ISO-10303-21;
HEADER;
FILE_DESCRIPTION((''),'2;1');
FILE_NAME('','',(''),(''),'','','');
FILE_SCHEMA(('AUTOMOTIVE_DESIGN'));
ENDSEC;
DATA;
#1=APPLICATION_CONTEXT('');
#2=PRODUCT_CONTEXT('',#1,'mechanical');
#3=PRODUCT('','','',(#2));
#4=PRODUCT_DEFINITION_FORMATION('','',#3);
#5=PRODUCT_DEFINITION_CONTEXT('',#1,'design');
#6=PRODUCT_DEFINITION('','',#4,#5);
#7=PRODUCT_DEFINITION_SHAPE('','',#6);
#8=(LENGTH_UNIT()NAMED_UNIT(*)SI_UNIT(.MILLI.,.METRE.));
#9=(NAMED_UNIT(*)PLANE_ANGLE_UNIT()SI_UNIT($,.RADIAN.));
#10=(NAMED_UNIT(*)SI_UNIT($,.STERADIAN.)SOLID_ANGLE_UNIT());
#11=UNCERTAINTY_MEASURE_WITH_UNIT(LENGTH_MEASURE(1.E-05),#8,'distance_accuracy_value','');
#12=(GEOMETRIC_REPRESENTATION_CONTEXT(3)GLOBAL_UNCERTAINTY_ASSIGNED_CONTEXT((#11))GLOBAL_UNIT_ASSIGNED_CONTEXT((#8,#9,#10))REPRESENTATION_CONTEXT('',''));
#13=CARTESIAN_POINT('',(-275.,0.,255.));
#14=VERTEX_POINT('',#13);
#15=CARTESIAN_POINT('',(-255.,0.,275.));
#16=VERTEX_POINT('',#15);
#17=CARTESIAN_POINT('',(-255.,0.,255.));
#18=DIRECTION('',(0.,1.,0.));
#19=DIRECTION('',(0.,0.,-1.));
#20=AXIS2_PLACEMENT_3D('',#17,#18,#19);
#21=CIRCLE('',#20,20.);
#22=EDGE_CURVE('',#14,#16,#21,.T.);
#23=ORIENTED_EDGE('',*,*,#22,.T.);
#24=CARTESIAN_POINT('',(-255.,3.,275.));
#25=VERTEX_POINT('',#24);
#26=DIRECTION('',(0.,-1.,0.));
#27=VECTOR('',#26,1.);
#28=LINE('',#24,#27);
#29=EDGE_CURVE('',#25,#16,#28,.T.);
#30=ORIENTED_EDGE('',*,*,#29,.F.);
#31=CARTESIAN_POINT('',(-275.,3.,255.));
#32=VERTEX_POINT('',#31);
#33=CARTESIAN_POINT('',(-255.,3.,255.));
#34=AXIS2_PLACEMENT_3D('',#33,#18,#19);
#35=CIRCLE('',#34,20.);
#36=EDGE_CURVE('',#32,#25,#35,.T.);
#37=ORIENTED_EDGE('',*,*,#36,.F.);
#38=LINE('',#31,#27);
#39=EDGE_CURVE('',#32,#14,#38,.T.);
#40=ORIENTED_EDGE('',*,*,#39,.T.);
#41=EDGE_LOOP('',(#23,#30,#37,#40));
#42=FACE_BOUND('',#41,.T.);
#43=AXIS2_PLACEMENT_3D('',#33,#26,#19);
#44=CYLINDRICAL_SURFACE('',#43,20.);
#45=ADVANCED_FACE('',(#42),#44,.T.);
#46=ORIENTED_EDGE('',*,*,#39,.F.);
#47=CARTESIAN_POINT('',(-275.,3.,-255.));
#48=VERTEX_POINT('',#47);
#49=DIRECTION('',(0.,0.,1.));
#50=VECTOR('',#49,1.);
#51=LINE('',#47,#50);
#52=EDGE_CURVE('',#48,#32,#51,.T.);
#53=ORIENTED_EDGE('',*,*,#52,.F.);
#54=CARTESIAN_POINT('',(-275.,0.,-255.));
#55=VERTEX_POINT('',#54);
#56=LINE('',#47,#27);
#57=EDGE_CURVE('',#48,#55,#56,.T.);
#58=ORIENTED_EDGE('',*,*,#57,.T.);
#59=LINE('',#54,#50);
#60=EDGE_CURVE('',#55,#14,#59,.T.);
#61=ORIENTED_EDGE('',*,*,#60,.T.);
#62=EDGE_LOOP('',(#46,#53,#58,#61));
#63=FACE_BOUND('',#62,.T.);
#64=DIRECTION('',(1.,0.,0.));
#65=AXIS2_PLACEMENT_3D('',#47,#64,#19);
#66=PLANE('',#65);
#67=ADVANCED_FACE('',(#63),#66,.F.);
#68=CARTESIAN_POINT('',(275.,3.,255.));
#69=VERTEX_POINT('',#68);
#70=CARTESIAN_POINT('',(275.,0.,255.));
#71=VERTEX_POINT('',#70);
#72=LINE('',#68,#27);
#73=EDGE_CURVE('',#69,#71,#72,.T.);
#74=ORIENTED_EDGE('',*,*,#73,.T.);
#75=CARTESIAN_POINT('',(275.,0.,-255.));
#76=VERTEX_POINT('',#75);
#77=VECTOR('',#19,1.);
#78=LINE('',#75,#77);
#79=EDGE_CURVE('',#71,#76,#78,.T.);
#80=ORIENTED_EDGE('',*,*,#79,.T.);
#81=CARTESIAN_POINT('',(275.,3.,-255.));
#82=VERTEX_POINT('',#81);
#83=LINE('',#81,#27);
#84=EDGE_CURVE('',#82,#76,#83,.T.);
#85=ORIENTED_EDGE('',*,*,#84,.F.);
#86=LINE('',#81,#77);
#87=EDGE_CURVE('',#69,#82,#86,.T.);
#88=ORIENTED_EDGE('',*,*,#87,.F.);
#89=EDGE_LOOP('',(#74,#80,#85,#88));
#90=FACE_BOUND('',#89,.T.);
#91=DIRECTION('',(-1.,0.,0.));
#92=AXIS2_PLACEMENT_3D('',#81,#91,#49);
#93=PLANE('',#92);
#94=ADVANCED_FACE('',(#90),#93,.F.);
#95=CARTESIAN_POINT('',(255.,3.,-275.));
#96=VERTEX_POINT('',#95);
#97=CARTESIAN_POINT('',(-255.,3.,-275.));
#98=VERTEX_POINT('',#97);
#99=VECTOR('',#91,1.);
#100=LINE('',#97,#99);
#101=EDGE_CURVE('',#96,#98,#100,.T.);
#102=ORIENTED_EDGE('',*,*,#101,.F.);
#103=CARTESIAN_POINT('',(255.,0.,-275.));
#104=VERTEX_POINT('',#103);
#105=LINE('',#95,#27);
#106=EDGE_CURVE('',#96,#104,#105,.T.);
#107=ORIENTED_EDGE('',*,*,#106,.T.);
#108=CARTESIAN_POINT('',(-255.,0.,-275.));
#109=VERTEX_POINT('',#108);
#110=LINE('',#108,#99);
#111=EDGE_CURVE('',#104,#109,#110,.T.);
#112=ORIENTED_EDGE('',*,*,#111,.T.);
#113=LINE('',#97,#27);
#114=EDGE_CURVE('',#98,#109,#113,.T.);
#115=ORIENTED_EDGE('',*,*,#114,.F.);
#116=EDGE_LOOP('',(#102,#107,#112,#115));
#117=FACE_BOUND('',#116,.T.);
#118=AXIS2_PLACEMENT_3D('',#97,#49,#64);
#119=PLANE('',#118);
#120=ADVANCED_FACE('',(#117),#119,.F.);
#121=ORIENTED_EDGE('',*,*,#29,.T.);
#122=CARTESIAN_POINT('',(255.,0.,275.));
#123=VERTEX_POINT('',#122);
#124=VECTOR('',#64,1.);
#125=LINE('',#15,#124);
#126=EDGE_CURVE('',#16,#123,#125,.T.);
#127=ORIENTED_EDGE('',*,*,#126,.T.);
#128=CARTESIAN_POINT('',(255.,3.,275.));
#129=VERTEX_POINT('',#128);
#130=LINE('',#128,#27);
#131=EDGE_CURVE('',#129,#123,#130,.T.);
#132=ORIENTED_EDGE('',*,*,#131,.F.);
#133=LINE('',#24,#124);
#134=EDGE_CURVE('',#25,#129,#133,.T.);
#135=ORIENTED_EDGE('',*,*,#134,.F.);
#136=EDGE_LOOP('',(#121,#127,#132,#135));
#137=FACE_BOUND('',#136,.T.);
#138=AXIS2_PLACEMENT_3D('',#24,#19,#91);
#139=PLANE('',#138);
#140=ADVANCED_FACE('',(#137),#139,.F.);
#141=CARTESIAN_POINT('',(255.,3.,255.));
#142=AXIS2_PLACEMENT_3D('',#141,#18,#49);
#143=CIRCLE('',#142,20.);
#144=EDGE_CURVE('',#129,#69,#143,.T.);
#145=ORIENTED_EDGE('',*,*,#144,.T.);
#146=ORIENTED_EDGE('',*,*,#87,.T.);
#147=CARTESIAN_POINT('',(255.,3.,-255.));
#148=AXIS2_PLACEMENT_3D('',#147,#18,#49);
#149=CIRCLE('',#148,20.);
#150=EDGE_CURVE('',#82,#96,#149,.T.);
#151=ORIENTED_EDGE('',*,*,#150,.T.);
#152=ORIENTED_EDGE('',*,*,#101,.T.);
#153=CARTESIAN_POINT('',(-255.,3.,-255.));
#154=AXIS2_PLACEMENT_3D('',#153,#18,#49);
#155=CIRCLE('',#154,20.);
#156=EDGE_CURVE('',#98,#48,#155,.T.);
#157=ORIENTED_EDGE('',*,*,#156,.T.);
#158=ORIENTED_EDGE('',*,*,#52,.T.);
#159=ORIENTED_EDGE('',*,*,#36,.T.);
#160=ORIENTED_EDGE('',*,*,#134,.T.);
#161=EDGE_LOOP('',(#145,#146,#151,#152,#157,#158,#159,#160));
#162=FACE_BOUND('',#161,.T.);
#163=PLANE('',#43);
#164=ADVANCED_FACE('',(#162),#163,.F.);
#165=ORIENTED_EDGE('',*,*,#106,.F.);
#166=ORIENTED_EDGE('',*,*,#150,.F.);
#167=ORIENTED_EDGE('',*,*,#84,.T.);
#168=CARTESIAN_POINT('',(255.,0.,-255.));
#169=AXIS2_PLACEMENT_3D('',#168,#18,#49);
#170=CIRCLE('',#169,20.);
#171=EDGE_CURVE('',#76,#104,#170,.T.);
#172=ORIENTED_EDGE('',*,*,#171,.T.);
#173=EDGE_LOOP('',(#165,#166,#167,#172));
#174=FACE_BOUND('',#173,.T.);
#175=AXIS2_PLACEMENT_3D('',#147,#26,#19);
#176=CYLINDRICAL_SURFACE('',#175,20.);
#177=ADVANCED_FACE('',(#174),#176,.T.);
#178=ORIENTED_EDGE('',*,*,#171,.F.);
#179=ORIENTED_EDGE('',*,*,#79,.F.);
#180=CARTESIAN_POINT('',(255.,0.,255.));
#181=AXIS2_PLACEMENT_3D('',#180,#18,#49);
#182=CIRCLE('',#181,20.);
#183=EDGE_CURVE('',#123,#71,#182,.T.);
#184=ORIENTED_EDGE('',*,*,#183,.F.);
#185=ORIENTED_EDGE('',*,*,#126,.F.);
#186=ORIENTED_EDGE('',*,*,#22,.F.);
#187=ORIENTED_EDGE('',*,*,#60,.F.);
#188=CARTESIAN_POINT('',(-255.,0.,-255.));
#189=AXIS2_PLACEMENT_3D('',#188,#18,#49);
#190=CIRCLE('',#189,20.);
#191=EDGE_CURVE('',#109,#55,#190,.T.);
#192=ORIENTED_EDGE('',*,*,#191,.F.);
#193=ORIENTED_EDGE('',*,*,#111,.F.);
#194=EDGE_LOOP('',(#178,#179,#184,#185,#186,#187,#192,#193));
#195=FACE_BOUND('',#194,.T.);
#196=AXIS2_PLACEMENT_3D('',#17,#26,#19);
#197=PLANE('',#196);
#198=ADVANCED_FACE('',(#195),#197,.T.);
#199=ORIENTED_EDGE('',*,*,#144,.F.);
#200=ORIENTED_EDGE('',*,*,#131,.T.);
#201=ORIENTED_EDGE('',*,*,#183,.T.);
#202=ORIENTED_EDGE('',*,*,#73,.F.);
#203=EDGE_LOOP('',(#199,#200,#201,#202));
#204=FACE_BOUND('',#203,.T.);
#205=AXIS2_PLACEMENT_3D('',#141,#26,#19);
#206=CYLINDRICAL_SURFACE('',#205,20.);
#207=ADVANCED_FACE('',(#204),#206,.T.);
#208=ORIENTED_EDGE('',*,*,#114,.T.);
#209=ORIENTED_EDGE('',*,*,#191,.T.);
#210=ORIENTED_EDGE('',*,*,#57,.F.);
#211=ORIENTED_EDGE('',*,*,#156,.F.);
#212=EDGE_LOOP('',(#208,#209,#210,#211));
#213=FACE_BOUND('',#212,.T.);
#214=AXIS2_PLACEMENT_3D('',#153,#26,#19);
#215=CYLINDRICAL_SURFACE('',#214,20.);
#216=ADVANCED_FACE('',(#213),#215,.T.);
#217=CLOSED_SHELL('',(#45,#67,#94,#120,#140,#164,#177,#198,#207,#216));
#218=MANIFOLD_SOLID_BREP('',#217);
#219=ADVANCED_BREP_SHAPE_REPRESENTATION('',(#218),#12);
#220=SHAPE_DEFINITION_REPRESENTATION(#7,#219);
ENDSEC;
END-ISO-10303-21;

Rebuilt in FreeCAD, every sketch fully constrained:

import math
import FreeCAD as App
import Part
import Sketcher

doc = App.newDocument("Part")
body = doc.addObject("PartDesign::Body", "Body")

sketch1 = body.newObject("Sketcher::SketchObject", "Sketch")
sketch1.AttachmentSupport = (doc.getObject("XZ_Plane"), [""])
sketch1.MapMode = "FlatFace"
sketch1.addGeometry([
    Part.LineSegment(App.Vector(255, -275, 0), App.Vector(-255, -275, 0)),
    Part.ArcOfCircle(Part.Circle(App.Vector(-255, -255, 0), App.Vector(0, 0, 1), 20), math.radians(180), math.radians(270)),
    Part.LineSegment(App.Vector(-275, -255, 0), App.Vector(-275, 255, 0)),
    Part.ArcOfCircle(Part.Circle(App.Vector(-255, 255, 0), App.Vector(0, 0, 1), 20), math.radians(90), math.radians(180)),
    Part.LineSegment(App.Vector(-255, 275, 0), App.Vector(255, 275, 0)),
    Part.ArcOfCircle(Part.Circle(App.Vector(255, 255, 0), App.Vector(0, 0, 1), 20), math.radians(0), math.radians(90)),
    Part.LineSegment(App.Vector(275, 255, 0), App.Vector(275, -255, 0)),
    Part.ArcOfCircle(Part.Circle(App.Vector(255, -255, 0), App.Vector(0, 0, 1), 20), math.radians(-90), math.radians(0)),
], False)
sketch1.addConstraint([
    Sketcher.Constraint("Tangent", 0, 2, 1, 2),
    Sketcher.Constraint("Tangent", 1, 1, 2, 1),
    Sketcher.Constraint("Tangent", 2, 2, 3, 2),
    Sketcher.Constraint("Tangent", 3, 1, 4, 1),
    Sketcher.Constraint("Tangent", 4, 2, 5, 2),
    Sketcher.Constraint("Tangent", 5, 1, 6, 1),
    Sketcher.Constraint("Tangent", 6, 2, 7, 2),
    Sketcher.Constraint("Tangent", 7, 1, 0, 1),
    Sketcher.Constraint("Horizontal", 0),
    Sketcher.Constraint("Vertical", 2),
    Sketcher.Constraint("Horizontal", 4),
    Sketcher.Constraint("Vertical", 6),
    Sketcher.Constraint("Equal", 1, 3),
    Sketcher.Constraint("Equal", 3, 5),
    Sketcher.Constraint("Equal", 5, 7),
    Sketcher.Constraint("Symmetric", 1, 3, 5, 3, -1, 1),
    Sketcher.Constraint("Equal", 4, 2),
    Sketcher.Constraint("Radius", 1, 20.0),
    Sketcher.Constraint("DistanceX", 0, 2, 0, 1, 510.0),
])
pad1 = body.newObject("PartDesign::Pad", "Pad")
pad1.Profile = sketch1
pad1.Length = 3
pad1.Reversed = True

doc.recompute()
